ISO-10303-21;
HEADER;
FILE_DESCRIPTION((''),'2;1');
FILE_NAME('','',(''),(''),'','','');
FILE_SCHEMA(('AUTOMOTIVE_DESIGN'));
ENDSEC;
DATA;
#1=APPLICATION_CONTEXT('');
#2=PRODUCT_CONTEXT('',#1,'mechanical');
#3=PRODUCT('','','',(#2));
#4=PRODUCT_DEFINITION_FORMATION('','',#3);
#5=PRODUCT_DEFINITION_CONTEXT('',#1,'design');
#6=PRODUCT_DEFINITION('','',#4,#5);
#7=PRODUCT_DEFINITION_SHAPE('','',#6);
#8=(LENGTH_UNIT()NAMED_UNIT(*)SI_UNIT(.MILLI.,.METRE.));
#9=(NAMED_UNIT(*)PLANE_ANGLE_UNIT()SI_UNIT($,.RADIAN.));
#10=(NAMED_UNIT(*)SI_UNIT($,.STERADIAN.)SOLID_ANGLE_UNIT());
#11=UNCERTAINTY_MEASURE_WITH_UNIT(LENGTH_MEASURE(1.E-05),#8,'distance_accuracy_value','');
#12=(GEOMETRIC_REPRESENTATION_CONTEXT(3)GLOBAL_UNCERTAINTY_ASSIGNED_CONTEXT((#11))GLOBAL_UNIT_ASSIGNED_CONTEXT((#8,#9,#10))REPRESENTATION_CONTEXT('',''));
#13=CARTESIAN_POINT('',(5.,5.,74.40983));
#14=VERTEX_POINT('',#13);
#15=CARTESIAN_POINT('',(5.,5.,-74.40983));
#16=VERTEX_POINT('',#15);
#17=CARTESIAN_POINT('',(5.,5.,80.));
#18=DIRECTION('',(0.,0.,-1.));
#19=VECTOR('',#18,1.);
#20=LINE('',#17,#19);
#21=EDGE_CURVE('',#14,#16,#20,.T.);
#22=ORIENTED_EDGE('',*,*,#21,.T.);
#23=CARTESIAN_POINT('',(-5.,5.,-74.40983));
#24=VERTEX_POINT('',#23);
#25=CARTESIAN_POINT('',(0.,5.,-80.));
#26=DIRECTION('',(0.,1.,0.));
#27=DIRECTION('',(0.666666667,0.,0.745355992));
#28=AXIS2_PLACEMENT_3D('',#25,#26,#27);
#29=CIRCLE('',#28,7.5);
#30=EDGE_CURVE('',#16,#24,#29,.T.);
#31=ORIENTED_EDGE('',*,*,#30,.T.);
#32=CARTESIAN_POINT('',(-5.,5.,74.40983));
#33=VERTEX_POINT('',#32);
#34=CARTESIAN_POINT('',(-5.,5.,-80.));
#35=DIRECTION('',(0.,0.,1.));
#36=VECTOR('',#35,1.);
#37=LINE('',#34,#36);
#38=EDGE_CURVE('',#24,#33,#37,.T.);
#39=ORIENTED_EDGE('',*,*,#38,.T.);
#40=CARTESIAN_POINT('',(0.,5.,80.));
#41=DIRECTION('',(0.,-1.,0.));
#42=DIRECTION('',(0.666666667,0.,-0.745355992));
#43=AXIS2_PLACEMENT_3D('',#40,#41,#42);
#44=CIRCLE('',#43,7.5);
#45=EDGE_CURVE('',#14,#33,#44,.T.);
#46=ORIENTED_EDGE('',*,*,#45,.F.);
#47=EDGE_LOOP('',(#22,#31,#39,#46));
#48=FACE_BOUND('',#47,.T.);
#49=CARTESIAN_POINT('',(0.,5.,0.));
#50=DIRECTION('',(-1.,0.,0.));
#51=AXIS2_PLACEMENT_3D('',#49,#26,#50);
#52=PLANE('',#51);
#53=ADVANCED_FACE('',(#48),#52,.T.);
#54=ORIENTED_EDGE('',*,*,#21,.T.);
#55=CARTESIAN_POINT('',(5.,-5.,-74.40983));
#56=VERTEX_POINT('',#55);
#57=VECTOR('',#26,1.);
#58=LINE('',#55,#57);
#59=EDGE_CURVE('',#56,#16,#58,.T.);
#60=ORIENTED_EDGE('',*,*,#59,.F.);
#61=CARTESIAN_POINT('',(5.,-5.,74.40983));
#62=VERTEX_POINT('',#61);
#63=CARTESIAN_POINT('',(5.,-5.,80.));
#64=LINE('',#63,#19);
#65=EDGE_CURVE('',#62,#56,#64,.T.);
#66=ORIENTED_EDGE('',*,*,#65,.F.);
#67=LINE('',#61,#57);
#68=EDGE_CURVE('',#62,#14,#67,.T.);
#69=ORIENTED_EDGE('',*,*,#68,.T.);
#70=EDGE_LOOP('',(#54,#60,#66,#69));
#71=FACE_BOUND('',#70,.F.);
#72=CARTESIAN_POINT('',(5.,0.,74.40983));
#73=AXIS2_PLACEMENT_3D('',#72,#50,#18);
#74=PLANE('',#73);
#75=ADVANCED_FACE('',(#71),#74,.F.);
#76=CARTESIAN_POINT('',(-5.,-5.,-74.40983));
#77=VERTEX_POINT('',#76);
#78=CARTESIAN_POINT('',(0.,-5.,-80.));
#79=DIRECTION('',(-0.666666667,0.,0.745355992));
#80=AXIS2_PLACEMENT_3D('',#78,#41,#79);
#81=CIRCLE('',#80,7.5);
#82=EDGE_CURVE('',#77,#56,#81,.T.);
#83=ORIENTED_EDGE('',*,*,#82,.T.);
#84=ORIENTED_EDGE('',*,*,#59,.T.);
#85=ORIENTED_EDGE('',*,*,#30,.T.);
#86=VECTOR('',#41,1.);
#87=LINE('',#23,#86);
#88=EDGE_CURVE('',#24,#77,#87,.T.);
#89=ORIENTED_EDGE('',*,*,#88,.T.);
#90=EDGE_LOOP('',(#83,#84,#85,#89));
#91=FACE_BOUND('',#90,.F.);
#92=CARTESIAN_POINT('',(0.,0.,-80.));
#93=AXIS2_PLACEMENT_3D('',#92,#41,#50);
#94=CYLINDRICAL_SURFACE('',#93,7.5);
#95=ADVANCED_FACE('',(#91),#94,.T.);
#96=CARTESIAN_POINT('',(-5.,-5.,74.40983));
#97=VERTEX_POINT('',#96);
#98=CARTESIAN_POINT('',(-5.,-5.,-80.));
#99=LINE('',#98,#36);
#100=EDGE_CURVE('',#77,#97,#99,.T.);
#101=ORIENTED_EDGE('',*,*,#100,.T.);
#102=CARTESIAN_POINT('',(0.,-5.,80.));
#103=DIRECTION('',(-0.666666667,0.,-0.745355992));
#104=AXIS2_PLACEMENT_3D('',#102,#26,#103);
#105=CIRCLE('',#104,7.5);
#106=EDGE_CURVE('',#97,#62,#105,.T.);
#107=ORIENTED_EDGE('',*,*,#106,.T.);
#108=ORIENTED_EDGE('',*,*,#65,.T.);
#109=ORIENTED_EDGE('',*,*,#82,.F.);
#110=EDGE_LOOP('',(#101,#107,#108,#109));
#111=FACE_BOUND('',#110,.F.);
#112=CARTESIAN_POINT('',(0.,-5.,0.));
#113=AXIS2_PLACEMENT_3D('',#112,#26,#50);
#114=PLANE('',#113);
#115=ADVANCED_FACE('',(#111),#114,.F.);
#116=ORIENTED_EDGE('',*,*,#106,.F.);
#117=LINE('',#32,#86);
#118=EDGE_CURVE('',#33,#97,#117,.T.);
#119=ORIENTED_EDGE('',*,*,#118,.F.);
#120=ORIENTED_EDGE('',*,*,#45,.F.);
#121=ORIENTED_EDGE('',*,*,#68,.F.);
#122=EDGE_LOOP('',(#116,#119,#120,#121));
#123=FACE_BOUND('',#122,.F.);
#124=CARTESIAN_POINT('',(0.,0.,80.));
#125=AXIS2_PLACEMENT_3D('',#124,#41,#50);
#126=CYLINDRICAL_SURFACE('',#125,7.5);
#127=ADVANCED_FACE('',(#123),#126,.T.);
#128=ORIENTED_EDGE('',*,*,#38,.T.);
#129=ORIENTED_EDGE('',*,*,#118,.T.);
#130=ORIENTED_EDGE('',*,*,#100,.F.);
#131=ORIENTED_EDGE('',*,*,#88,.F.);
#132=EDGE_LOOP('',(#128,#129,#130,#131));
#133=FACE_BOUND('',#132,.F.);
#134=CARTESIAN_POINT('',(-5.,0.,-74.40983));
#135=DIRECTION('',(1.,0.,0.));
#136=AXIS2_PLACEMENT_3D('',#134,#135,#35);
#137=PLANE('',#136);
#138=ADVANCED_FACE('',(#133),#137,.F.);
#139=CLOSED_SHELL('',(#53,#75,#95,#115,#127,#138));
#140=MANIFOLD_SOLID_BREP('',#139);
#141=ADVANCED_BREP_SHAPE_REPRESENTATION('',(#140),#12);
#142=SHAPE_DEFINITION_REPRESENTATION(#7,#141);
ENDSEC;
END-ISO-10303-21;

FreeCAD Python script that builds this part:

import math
import FreeCAD as App
import Part
import Sketcher

V = App.Vector
Q = App.Units.Quantity

doc = App.newDocument("Part")
body = doc.addObject("PartDesign::Body", "Body")

sketch1 = doc.addObject("Sketcher::SketchObject", "Sketch")
body.addObject(sketch1)
sketch1.AttachmentSupport = (doc.XZ_Plane, [""])
sketch1.MapMode = "FlatFace"
sketch1.addGeometry(Part.ArcOfCircle(Part.Circle(V(0, 80, 0), V(0, 0, 1), 8), math.radians(-48), math.radians(228)), False)
sketch1.addGeometry(Part.LineSegment(V(5, 74, 0), V(5, -74, 0)), False)
sketch1.addGeometry(Part.ArcOfCircle(Part.Circle(V(0, -80, 0), V(0, 0, 1), 8), math.radians(132), math.radians(408)), False)
sketch1.addGeometry(Part.LineSegment(V(-5, -74, 0), V(-5, 74, 0)), False)
sketch1.addConstraint(Sketcher.Constraint("Coincident", 0, 1, 1, 1))
sketch1.addConstraint(Sketcher.Constraint("Coincident", 1, 2, 2, 2))
sketch1.addConstraint(Sketcher.Constraint("Coincident", 2, 1, 3, 1))
sketch1.addConstraint(Sketcher.Constraint("Coincident", 3, 2, 0, 2))
sketch1.addConstraint(Sketcher.Constraint("Vertical", 1))
sketch1.addConstraint(Sketcher.Constraint("Vertical", 3))
sketch1.addConstraint(Sketcher.Constraint("Equal", 0, 2))
sketch1.addConstraint(Sketcher.Constraint("Symmetric", 0, 3, 2, 3, -1, 1))
sketch1.addConstraint(Sketcher.Constraint("Symmetric", 1, 2, 2, 1, -2))
sketch1.addConstraint(Sketcher.Constraint("Radius", 0, Q("7.5 mm")))
sketch1.addConstraint(Sketcher.Constraint("DistanceY", -1, 1, 0, 3, Q("80 mm")))
sketch1.addConstraint(Sketcher.Constraint("DistanceX", -1, 1, 0, 1, Q("5 mm")))
pad1 = doc.addObject("PartDesign::Pad", "Pad")
body.addObject(pad1)
pad1.Profile = sketch1
pad1.Type = "TwoLengths"
pad1.Length = 5
pad1.Length2 = 5
pad1.Reversed = True

doc.recompute()
